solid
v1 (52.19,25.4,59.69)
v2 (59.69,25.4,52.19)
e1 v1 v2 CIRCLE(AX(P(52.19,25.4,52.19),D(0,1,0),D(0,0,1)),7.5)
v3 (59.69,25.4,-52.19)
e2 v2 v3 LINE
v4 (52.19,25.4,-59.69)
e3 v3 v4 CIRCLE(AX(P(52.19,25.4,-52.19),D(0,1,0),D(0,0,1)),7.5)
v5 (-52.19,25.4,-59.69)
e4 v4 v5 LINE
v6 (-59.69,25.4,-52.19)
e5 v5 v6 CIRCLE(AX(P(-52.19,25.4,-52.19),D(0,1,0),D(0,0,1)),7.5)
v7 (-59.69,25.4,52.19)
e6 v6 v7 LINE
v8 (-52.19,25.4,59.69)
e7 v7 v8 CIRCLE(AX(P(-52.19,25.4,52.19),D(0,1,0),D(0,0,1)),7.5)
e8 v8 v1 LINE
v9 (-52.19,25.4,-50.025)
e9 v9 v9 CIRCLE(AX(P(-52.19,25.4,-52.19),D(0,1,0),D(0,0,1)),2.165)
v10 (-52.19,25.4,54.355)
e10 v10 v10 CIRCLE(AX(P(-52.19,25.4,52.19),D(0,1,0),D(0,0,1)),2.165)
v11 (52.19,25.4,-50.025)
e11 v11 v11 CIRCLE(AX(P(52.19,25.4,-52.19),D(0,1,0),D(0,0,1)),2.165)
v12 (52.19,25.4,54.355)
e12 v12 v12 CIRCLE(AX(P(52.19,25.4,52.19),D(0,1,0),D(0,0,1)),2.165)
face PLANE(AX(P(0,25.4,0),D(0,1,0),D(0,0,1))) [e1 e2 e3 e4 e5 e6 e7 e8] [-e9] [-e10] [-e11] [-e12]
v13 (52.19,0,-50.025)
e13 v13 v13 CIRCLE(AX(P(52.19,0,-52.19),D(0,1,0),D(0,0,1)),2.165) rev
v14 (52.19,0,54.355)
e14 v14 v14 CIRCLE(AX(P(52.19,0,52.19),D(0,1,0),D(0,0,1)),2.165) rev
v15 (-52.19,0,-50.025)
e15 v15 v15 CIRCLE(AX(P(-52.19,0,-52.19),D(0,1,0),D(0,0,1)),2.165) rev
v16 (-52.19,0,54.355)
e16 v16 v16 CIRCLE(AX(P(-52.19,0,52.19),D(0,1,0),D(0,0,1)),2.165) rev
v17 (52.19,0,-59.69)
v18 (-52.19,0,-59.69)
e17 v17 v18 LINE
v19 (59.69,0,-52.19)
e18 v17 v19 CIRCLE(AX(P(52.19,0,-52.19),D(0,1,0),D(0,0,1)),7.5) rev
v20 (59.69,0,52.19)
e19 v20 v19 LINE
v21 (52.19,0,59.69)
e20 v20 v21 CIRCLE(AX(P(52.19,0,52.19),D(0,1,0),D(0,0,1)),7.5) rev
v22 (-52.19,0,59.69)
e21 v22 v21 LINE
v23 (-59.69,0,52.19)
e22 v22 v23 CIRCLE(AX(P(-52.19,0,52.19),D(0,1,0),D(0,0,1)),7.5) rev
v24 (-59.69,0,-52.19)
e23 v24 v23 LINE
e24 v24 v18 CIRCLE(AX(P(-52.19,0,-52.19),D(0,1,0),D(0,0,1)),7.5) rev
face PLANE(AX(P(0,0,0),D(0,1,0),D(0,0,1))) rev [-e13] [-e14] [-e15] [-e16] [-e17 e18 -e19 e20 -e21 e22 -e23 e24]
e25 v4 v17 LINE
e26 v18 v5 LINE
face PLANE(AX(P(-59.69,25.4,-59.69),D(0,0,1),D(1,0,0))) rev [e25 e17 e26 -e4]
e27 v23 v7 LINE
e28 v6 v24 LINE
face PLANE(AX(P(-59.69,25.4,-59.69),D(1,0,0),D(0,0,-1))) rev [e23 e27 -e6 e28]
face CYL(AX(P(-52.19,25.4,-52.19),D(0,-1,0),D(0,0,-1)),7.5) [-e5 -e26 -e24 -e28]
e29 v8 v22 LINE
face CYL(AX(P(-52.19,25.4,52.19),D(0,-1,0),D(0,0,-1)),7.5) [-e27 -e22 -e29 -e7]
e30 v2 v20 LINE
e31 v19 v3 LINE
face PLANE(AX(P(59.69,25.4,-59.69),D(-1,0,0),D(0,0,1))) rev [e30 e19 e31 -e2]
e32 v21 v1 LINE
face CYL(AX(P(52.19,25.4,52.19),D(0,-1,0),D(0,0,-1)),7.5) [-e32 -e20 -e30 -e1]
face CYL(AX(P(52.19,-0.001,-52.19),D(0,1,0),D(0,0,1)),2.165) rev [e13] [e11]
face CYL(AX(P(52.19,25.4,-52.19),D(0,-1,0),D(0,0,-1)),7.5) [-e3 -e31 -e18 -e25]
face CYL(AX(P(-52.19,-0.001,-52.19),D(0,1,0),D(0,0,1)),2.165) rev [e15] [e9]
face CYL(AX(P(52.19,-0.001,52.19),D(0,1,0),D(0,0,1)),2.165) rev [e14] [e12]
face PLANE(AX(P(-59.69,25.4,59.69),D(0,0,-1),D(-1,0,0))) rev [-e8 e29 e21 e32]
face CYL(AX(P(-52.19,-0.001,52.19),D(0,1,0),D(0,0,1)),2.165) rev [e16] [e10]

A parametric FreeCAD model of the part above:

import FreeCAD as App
import Part
import Sketcher
Q = App.Units.Quantity


def edges_at(feature, points):
    """Names of the edges that pass closest to the given points."""
    edges = feature.Shape.Edges
    near = lambda p: min(range(len(edges)), key=lambda i: edges[i].distToShape(Part.Vertex(*p))[0])
    return sorted({f"Edge{near(p) + 1}" for p in points})

doc = App.newDocument("Part")
body = doc.addObject("PartDesign::Body", "Body")

# Sketch on XZ plane
sketch1 = body.newObject("Sketcher::SketchObject", "Sketch")
sketch1.AttachmentSupport = (doc.getObject("XZ_Plane"), [""])
sketch1.MapMode = "FlatFace"
sketch1.addGeometry([
    Part.LineSegment(App.Vector(-59.69, -59.69, 0), App.Vector(-59.69, 59.69, 0)),
    Part.LineSegment(App.Vector(-59.69, 59.69, 0), App.Vector(59.69, 59.69, 0)),
    Part.LineSegment(App.Vector(59.69, 59.69, 0), App.Vector(59.69, -59.69, 0)),
    Part.LineSegment(App.Vector(59.69, -59.69, 0), App.Vector(-59.69, -59.69, 0)),
], False)
sketch1.addConstraint([
    Sketcher.Constraint("Coincident", 0, 2, 1, 1),
    Sketcher.Constraint("Coincident", 1, 2, 2, 1),
    Sketcher.Constraint("Coincident", 2, 2, 3, 1),
    Sketcher.Constraint("Coincident", 3, 2, 0, 1),
    Sketcher.Constraint("Vertical", 0),
    Sketcher.Constraint("Horizontal", 1),
    Sketcher.Constraint("Vertical", 2),
    Sketcher.Constraint("Horizontal", 3),
    Sketcher.Constraint("Symmetric", 0, 2, 2, 2, -1, 1),
    Sketcher.Constraint("Equal", 3, 0),
    Sketcher.Constraint("DistanceX", 1, 1, 1, 2, Q("4.7 in")),
])
pad1 = body.newObject("PartDesign::Pad", "Pad")
pad1.Profile = sketch1
pad1.Length = Q("1 in")
pad1.Reversed = True

# Sketch on XZ plane
sketch2 = body.newObject("Sketcher::SketchObject", "Sketch001")
sketch2.AttachmentSupport = (doc.getObject("XZ_Plane"), [""])
sketch2.MapMode = "FlatFace"
sketch2.AttachmentOffset = App.Placement(App.Vector(0, 0, -1 * 25.4), App.Rotation())
sketch2.addGeometry(Part.Circle(App.Vector(-52.19, -52.19, 0), App.Vector(0, 0, 1), 2.165), False)
sketch2.addConstraint([
    Sketcher.Constraint("Diameter", 0, 4.33),
    Sketcher.Constraint("DistanceX", 0, 3, -1, 1, 52.19),
    Sketcher.Constraint("DistanceY", 0, 3, -1, 1, 52.19),
])
pocket1 = body.newObject("PartDesign::Pocket", "Pocket")
pocket1.Profile = sketch2
pocket1.Type = "UpToFirst"
pocket1.Reversed = True

# Sketch on XZ plane
sketch3 = body.newObject("Sketcher::SketchObject", "Sketch002")
sketch3.AttachmentSupport = (doc.getObject("XZ_Plane"), [""])
sketch3.MapMode = "FlatFace"
sketch3.AttachmentOffset = App.Placement(App.Vector(0, 0, -1 * 25.4), App.Rotation())
sketch3.addGeometry(Part.Circle(App.Vector(52.19, -52.19, 0), App.Vector(0, 0, 1), 2.165), False)
sketch3.addConstraint([
    Sketcher.Constraint("Diameter", 0, 4.33),
    Sketcher.Constraint("DistanceX", -1, 1, 0, 3, 52.19),
    Sketcher.Constraint("DistanceY", 0, 3, -1, 1, 52.19),
])
pocket2 = body.newObject("PartDesign::Pocket", "Pocket001")
pocket2.Profile = sketch3
pocket2.Type = "UpToFirst"
pocket2.Reversed = True

# Sketch on XZ plane
sketch4 = body.newObject("Sketcher::SketchObject", "Sketch003")
sketch4.AttachmentSupport = (doc.getObject("XZ_Plane"), [""])
sketch4.MapMode = "FlatFace"
sketch4.AttachmentOffset = App.Placement(App.Vector(0, 0, -1 * 25.4), App.Rotation())
sketch4.addGeometry(Part.Circle(App.Vector(52.19, 52.19, 0), App.Vector(0, 0, 1), 2.165), False)
sketch4.addConstraint([
    Sketcher.Constraint("Diameter", 0, 4.33),
    Sketcher.Constraint("DistanceX", -1, 1, 0, 3, 52.19),
    Sketcher.Constraint("DistanceY", -1, 1, 0, 3, 52.19),
])
pocket3 = body.newObject("PartDesign::Pocket", "Pocket002")
pocket3.Profile = sketch4
pocket3.Type = "UpToFirst"
pocket3.Reversed = True

# Sketch on XZ plane
sketch5 = body.newObject("Sketcher::SketchObject", "Sketch004")
sketch5.AttachmentSupport = (doc.getObject("XZ_Plane"), [""])
sketch5.MapMode = "FlatFace"
sketch5.AttachmentOffset = App.Placement(App.Vector(0, 0, -1 * 25.4), App.Rotation())
sketch5.addGeometry(Part.Circle(App.Vector(-52.19, 52.19, 0), App.Vector(0, 0, 1), 2.165), False)
sketch5.addConstraint([
    Sketcher.Constraint("Diameter", 0, 4.33),
    Sketcher.Constraint("DistanceX", 0, 3, -1, 1, 52.19),
    Sketcher.Constraint("DistanceY", -1, 1, 0, 3, 52.19),
])
pocket4 = body.newObject("PartDesign::Pocket", "Pocket003")
pocket4.Profile = sketch5
pocket4.Type = "UpToFirst"
pocket4.Reversed = True
doc.recompute()

fillet = body.newObject("PartDesign::Fillet", "Fillet")
fillet.Base = (pocket4, edges_at(pocket4, [(-59.69, 12.7, -59.69)]))
fillet.Radius = 7.5
doc.recompute()

fillet2 = body.newObject("PartDesign::Fillet", "Fillet001")
fillet2.Base = (fillet, edges_at(fillet, [(59.69, 12.7, -59.69)]))
fillet2.Radius = 7.5
doc.recompute()

fillet3 = body.newObject("PartDesign::Fillet", "Fillet002")
fillet3.Base = (fillet2, edges_at(fillet2, [(59.69, 12.7, 59.69), (-59.69, 12.7, 59.69)]))
fillet3.Radius = 7.5

doc.recompute()
